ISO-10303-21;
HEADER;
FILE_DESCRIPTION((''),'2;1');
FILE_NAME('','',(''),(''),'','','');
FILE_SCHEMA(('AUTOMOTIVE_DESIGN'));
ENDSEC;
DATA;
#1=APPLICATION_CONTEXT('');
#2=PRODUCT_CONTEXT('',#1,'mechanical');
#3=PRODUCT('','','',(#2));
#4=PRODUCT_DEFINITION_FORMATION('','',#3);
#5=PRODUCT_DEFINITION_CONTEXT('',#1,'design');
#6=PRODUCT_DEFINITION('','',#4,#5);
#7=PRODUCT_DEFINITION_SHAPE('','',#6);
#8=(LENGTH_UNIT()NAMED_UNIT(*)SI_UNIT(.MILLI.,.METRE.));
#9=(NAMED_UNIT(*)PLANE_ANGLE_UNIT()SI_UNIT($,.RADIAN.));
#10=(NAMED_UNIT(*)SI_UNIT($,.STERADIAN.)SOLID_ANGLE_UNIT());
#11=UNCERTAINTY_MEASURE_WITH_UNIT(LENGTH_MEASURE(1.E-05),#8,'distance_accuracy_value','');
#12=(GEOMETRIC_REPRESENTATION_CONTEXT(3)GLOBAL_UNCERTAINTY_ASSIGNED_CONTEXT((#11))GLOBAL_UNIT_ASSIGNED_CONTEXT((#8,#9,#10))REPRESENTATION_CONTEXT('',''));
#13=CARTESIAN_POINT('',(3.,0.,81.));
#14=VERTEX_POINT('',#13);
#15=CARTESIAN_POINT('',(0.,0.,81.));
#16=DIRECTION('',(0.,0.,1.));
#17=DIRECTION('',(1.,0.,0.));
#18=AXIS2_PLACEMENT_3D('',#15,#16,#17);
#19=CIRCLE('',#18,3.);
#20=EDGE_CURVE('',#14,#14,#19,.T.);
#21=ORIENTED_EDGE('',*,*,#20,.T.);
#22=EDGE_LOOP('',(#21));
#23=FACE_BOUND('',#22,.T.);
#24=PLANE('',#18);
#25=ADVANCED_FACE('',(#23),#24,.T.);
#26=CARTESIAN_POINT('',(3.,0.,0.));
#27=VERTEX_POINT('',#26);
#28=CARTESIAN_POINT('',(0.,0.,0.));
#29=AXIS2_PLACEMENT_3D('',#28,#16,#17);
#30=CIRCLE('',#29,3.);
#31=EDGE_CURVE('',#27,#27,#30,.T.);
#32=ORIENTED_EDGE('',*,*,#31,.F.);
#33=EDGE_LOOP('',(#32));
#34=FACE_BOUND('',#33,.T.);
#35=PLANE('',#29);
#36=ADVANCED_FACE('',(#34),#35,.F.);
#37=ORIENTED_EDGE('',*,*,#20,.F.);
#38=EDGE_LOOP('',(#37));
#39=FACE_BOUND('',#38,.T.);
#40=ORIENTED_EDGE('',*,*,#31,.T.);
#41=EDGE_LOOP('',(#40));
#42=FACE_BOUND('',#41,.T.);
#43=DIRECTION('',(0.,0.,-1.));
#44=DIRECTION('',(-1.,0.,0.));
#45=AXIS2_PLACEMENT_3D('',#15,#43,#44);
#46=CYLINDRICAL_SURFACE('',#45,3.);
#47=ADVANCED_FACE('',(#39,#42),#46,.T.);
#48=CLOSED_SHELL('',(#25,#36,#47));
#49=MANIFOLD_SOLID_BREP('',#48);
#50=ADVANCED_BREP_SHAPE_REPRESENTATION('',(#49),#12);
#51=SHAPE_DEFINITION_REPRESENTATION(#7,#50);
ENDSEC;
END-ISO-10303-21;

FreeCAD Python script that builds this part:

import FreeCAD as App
import Part
import Sketcher

V = App.Vector

doc = App.newDocument("Part")
body = doc.addObject("PartDesign::Body", "Body")

# Sketch on XY plane
sketch1 = body.newObject("Sketcher::SketchObject", "Sketch")
sketch1.AttachmentSupport = (doc.getObject("XY_Plane"), [""])
sketch1.MapMode = "FlatFace"
sketch1.addGeometry(Part.Circle(V(0, 0, 0), V(0, 0, 1), 3), False)
sketch1.addConstraint(Sketcher.Constraint("Coincident", 0, 3, -1, 1))
sketch1.addConstraint(Sketcher.Constraint("Diameter", 0, 6.0))
pad1 = body.newObject("PartDesign::Pad", "Pad")
pad1.Profile = sketch1
pad1.Length = 81

doc.recompute()
